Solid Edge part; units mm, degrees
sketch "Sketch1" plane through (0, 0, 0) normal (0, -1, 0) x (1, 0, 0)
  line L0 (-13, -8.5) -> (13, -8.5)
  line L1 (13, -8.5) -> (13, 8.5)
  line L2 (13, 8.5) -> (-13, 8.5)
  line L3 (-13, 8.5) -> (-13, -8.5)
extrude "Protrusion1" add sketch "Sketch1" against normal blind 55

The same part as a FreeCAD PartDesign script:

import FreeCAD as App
import Part
import Sketcher
from FreeCAD import Vector

doc = App.newDocument("Part")
params = doc.addObject("Spreadsheet::Sheet", "Params")
for row, (alias, value) in enumerate([
    ("sketch1_width", "26 mm"),
    ("sketch1_height", "17 mm"),
    ("pad1_length", "55 mm"),
], start=1):
    params.set(f"A{row}", alias)
    params.set(f"B{row}", "=" + value)
    params.setAlias(f"B{row}", alias)

body = doc.addObject("PartDesign::Body", "Body")

sketch1 = body.newObject("Sketcher::SketchObject", "Sketch")
sketch1.AttachmentSupport = (doc.getObject("XZ_Plane"), [""])
sketch1.MapMode = "FlatFace"
sketch1.addGeometry(Part.LineSegment(Vector(-13, 8, 0), Vector(-13, -8, 0)), False)
sketch1.addGeometry(Part.LineSegment(Vector(-13, -8, 0), Vector(13, -8, 0)), False)
sketch1.addGeometry(Part.LineSegment(Vector(13, -8, 0), Vector(13, 8, 0)), False)
sketch1.addGeometry(Part.LineSegment(Vector(13, 8, 0), Vector(-13, 8, 0)), False)
sketch1.addConstraint(Sketcher.Constraint("Coincident", 0, 2, 1, 1))
sketch1.addConstraint(Sketcher.Constraint("Coincident", 1, 2, 2, 1))
sketch1.addConstraint(Sketcher.Constraint("Coincident", 2, 2, 3, 1))
sketch1.addConstraint(Sketcher.Constraint("Coincident", 3, 2, 0, 1))
sketch1.addConstraint(Sketcher.Constraint("Vertical", 0))
sketch1.addConstraint(Sketcher.Constraint("Horizontal", 1))
sketch1.addConstraint(Sketcher.Constraint("Vertical", 2))
sketch1.addConstraint(Sketcher.Constraint("Horizontal", 3))
sketch1.addConstraint(Sketcher.Constraint("Symmetric", 0, 2, 2, 2, -1, 1))
sketch1.addConstraint(Sketcher.Constraint("DistanceX", 1, 1, 1, 2, 26.0))
sketch1.addConstraint(Sketcher.Constraint("DistanceY", 0, 2, 0, 1, 17.0))
sketch1.setExpression("Constraints[9]", "Params.sketch1_width")
sketch1.setExpression("Constraints[10]", "Params.sketch1_height")
pad1 = body.newObject("PartDesign::Pad", "Pad")
pad1.Profile = sketch1
pad1.setExpression("Length", "Params.pad1_length")
pad1.Reversed = True

doc.recompute()
